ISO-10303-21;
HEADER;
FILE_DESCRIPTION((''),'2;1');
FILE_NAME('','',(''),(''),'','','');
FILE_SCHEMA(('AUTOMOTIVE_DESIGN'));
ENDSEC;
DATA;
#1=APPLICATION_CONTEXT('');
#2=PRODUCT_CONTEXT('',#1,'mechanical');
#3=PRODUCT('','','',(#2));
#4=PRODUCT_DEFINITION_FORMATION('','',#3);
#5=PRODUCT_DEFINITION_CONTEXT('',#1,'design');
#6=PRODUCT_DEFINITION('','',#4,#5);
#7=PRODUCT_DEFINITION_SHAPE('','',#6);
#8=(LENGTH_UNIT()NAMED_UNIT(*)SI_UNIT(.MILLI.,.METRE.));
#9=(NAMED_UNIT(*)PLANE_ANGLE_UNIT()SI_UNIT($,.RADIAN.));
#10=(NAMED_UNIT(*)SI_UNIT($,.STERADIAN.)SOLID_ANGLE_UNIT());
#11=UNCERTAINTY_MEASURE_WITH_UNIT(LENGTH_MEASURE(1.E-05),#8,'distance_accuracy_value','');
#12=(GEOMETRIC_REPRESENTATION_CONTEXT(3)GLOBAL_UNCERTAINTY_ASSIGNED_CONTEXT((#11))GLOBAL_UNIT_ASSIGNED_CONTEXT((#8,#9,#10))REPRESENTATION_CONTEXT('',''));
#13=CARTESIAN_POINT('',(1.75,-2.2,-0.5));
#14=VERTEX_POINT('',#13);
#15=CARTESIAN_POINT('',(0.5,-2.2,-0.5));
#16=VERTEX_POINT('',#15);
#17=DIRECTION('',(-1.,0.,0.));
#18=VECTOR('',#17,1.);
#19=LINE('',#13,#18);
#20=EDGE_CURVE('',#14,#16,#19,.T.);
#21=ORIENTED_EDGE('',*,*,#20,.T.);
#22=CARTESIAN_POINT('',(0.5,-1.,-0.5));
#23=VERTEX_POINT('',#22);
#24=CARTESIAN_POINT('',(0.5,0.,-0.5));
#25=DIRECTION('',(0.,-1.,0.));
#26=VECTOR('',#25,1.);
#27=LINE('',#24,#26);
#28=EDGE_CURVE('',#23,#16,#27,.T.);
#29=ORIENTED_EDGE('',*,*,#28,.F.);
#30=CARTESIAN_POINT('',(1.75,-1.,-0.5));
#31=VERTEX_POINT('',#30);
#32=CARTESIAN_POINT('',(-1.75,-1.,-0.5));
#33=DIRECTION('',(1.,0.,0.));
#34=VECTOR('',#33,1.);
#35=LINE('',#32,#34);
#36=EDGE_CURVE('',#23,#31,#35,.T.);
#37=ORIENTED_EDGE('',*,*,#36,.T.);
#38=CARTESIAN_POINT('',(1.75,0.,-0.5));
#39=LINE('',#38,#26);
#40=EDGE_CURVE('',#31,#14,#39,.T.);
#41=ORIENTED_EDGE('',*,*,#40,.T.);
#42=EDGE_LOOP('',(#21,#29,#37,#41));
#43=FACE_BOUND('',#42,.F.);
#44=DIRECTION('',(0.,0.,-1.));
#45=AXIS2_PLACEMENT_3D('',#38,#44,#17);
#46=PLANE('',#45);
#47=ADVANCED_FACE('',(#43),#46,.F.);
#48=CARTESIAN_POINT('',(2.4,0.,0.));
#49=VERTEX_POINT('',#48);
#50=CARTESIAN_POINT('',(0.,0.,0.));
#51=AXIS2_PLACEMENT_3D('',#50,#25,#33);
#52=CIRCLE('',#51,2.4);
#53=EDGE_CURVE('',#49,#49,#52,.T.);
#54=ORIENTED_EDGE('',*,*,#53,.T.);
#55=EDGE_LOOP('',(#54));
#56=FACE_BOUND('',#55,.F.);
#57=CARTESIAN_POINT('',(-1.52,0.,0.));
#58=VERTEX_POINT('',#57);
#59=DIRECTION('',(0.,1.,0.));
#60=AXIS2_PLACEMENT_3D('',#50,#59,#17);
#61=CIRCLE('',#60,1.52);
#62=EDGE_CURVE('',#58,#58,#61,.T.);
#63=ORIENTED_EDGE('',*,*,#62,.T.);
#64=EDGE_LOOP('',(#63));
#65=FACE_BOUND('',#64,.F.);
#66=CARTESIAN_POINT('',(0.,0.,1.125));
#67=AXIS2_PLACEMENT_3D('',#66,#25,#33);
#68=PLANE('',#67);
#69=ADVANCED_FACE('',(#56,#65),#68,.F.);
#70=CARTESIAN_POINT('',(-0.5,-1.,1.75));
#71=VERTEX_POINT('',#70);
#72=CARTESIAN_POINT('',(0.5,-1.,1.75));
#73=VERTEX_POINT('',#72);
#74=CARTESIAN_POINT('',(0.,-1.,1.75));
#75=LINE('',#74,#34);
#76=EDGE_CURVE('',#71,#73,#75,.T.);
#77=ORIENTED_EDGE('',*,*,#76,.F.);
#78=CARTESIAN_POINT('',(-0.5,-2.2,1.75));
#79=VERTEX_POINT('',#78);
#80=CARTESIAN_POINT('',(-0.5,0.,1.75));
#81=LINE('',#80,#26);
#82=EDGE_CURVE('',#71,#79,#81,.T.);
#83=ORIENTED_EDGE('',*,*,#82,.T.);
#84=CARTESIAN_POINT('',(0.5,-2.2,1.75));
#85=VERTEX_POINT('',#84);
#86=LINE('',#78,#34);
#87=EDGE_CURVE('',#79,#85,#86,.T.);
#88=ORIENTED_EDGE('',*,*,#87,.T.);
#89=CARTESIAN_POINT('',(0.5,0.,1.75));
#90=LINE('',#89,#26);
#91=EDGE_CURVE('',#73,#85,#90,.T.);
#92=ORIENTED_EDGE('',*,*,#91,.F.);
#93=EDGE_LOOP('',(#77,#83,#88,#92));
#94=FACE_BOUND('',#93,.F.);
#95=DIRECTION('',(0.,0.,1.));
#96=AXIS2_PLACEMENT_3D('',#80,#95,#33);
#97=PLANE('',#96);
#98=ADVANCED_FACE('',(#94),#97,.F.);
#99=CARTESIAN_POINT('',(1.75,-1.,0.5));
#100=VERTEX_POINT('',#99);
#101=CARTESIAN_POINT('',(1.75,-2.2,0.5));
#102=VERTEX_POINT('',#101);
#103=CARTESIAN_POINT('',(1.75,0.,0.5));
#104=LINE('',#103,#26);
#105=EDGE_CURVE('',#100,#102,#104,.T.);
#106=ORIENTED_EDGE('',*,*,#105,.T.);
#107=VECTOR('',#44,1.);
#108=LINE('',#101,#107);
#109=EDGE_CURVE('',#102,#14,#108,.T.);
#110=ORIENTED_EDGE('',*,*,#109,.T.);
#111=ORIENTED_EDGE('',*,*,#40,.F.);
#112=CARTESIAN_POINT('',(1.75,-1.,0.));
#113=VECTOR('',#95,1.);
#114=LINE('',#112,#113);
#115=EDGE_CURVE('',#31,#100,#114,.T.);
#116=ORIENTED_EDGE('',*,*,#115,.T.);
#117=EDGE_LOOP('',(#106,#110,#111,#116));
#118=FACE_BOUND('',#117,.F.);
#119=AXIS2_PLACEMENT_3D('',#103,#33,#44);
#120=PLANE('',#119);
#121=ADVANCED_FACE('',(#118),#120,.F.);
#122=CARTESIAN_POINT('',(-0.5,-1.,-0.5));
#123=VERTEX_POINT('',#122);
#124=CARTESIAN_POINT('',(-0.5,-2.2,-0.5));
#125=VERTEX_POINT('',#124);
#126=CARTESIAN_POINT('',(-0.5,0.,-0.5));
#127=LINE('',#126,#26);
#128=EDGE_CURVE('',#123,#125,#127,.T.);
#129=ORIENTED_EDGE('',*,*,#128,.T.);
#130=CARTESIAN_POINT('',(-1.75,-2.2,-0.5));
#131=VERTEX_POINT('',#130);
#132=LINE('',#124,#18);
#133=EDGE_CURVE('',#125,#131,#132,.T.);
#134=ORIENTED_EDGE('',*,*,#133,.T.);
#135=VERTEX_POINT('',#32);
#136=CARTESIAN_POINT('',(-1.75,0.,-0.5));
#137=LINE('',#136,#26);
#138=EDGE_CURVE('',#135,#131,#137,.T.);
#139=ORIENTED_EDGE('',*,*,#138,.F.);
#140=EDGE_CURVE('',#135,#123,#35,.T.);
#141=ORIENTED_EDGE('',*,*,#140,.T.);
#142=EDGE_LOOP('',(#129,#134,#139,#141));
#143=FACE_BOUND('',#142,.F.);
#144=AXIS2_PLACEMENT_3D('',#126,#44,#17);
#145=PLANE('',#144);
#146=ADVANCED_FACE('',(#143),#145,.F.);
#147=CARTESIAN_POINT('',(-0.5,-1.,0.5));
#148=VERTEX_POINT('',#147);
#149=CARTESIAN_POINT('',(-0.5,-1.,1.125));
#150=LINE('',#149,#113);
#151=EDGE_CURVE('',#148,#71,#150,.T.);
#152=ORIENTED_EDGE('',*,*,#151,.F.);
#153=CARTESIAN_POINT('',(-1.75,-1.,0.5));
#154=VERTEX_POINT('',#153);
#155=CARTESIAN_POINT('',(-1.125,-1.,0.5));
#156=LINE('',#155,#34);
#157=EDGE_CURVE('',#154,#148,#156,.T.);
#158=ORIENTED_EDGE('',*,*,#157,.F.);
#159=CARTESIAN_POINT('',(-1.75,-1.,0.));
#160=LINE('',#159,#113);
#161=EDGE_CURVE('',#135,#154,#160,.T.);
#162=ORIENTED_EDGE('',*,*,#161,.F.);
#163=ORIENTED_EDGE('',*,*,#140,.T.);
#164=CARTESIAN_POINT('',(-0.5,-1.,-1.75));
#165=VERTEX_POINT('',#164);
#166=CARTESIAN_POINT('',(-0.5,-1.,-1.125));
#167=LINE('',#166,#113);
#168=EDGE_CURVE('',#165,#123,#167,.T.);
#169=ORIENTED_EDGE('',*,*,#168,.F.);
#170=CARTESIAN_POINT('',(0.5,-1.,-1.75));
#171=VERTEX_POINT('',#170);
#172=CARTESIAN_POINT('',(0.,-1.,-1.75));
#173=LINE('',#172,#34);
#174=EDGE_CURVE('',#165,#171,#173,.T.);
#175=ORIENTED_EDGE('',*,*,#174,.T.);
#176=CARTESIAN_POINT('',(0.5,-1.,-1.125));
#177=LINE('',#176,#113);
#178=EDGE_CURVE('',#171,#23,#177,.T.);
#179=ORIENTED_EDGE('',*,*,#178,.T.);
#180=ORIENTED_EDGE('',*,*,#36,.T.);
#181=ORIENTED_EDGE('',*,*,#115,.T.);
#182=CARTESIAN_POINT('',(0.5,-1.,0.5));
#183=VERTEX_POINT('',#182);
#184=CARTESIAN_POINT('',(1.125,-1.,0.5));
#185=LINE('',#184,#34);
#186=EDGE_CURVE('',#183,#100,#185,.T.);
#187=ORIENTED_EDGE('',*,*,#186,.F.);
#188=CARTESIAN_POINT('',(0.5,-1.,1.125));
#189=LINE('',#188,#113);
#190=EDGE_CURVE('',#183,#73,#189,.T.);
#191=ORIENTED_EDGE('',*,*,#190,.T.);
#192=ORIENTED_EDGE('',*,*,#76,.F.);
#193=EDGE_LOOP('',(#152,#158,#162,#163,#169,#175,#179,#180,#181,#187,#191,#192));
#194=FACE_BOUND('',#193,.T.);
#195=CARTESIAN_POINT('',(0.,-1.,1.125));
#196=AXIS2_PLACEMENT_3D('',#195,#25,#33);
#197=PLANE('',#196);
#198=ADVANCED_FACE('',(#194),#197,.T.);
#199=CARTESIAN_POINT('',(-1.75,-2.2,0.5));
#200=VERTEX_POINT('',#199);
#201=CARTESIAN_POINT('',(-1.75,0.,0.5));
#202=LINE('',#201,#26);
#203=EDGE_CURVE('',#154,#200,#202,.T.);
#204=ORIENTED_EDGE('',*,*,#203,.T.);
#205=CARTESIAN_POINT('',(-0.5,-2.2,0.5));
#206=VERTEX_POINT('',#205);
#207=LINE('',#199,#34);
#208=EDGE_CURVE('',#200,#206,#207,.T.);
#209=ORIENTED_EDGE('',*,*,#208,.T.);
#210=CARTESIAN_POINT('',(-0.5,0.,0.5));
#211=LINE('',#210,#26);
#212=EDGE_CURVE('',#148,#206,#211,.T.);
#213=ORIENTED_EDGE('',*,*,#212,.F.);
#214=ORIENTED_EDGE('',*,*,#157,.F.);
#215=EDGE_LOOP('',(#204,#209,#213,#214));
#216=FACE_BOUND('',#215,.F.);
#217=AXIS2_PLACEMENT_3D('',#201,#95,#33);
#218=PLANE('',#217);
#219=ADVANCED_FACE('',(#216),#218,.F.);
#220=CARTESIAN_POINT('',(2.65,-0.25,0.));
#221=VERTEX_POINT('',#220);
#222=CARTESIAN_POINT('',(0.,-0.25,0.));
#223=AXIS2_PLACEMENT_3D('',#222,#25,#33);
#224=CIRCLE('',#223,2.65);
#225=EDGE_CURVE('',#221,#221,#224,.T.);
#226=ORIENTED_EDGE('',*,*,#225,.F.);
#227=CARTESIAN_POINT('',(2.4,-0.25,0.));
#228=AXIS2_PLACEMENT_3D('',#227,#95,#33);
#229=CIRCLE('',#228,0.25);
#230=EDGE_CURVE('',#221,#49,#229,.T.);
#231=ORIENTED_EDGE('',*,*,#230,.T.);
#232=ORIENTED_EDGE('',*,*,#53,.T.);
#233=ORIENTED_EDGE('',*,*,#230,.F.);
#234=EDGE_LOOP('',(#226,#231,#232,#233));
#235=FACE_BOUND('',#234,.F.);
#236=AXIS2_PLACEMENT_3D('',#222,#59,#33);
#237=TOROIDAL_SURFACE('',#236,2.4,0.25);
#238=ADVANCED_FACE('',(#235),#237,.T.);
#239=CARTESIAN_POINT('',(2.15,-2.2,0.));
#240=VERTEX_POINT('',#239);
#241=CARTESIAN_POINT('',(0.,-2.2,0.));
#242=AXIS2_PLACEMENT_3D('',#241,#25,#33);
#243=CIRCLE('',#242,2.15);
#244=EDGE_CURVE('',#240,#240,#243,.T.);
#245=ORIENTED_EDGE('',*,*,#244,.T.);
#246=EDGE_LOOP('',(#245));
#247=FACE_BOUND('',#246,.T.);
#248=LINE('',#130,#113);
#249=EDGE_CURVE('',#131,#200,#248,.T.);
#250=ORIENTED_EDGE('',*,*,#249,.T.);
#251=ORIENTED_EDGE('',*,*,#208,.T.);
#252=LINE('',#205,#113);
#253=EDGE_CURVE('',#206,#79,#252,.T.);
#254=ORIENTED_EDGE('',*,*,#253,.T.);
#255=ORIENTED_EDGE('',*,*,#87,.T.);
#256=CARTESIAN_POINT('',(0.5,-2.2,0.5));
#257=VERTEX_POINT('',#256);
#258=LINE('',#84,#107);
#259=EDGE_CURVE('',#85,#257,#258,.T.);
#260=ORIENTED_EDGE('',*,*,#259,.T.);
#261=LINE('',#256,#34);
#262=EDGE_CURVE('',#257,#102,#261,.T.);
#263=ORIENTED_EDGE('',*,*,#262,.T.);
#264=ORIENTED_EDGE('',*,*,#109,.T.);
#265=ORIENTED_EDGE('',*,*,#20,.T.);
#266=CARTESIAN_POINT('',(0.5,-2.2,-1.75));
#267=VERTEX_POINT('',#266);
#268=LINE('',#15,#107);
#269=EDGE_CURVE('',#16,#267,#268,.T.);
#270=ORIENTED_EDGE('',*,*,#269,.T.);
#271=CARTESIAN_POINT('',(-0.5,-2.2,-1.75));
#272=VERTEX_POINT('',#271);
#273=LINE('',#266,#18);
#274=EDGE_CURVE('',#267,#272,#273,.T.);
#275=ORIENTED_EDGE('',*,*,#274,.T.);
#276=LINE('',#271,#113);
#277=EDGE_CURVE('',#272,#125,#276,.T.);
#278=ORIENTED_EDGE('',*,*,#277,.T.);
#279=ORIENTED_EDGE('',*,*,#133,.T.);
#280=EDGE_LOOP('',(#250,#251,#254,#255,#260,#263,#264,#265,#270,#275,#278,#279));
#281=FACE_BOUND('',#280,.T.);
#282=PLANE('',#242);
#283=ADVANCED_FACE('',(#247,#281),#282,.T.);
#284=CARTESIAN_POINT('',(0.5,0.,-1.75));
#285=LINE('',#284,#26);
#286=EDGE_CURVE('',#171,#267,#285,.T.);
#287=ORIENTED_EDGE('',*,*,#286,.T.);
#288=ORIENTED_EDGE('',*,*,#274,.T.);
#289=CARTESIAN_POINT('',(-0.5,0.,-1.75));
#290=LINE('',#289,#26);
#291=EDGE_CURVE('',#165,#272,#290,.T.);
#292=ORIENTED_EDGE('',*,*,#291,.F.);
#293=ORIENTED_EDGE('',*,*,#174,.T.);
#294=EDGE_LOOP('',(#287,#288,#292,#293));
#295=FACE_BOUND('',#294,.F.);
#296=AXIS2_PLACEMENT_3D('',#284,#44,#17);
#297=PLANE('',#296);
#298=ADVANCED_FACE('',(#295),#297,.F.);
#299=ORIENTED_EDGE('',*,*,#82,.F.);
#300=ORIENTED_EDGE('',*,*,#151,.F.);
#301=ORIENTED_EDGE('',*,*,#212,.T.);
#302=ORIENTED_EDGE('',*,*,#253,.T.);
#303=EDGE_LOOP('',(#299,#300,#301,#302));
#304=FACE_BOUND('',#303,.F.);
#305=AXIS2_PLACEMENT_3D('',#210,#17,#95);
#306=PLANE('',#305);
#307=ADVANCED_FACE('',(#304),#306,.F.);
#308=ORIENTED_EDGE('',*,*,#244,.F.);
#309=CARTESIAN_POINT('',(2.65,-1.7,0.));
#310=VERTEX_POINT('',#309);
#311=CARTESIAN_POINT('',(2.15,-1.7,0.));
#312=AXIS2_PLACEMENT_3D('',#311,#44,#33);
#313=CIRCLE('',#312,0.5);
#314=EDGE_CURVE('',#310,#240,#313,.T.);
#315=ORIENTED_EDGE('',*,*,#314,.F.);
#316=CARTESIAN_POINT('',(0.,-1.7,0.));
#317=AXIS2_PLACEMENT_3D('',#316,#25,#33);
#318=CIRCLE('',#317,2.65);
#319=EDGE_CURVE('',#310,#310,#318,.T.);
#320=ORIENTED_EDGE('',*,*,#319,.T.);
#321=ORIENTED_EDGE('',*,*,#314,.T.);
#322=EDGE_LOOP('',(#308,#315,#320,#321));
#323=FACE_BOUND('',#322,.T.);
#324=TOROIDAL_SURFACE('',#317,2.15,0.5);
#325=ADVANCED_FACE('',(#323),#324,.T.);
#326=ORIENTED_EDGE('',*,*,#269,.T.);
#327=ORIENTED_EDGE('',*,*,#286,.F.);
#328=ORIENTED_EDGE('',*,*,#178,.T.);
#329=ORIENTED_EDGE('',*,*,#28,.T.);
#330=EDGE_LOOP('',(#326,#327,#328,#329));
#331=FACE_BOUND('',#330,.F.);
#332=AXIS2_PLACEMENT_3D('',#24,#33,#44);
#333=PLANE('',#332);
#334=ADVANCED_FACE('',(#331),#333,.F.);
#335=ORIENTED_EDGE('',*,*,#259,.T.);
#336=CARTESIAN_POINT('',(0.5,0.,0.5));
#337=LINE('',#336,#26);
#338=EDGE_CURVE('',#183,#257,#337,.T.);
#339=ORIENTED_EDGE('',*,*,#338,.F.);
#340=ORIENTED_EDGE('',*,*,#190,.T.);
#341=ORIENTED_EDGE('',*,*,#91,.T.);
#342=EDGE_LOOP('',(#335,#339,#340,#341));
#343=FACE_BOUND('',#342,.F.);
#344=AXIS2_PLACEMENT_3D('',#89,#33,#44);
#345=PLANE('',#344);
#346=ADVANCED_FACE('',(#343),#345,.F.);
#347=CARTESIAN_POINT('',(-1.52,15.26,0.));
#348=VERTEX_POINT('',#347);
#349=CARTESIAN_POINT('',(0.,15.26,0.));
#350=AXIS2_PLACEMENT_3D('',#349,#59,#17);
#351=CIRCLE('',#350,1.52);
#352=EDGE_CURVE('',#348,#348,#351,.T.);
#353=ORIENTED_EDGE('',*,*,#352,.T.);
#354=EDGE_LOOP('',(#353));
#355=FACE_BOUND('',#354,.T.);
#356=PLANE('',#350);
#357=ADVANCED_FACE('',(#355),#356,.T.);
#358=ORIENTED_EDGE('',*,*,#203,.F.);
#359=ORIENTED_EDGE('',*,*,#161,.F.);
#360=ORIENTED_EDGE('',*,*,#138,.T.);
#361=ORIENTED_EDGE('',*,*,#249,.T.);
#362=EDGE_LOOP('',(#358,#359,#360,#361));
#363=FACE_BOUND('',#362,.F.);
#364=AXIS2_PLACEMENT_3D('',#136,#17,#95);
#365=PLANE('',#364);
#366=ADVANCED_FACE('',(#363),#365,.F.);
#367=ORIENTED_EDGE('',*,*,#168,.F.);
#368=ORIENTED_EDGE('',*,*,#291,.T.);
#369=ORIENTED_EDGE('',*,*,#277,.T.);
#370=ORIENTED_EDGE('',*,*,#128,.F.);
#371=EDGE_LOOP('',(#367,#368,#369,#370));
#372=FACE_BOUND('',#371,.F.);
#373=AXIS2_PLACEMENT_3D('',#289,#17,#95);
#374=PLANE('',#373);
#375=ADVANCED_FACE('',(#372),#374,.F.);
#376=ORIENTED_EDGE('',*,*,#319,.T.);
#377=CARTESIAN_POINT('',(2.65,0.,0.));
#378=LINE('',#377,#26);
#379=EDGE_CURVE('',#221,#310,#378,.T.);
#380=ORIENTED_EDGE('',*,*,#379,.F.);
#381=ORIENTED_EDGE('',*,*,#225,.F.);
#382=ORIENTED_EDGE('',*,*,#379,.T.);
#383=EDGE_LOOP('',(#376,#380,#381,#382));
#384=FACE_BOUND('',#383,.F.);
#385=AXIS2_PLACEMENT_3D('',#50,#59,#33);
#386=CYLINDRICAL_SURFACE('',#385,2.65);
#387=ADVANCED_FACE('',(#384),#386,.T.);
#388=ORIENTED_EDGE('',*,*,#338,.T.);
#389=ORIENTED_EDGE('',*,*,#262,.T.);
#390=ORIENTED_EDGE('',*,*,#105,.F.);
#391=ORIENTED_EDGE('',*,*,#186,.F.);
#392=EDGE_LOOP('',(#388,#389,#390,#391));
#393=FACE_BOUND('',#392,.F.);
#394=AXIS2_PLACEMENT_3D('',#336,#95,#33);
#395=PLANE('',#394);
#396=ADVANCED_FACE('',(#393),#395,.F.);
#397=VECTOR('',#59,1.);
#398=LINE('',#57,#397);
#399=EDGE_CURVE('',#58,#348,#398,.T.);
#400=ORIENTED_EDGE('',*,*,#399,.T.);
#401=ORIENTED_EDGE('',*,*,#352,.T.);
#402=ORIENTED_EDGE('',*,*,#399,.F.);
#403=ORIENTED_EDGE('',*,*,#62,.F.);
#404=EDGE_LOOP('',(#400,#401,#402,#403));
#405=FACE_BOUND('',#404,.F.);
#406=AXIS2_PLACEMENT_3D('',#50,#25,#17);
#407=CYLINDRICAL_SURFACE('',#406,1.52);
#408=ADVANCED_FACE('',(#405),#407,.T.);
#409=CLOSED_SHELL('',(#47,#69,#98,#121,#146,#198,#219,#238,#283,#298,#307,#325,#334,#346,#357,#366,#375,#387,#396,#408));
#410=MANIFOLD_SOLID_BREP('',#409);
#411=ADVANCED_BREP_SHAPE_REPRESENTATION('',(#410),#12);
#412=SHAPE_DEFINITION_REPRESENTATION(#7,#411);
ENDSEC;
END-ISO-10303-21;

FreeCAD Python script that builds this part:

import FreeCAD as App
import Part
import Sketcher
Q = App.Units.Quantity


def edges_at(feature, points):
    """Names of the edges that pass closest to the given points."""
    edges = feature.Shape.Edges
    near = lambda p: min(range(len(edges)), key=lambda i: edges[i].distToShape(Part.Vertex(*p))[0])
    return sorted({f"Edge{near(p) + 1}" for p in points})

doc = App.newDocument("Part")
body = doc.addObject("PartDesign::Body", "Body")

sketch1 = doc.addObject("Sketcher::SketchObject", "Sketch")
body.addObject(sketch1)
sketch1.AttachmentSupport = (doc.XZ_Plane, [""])
sketch1.MapMode = "FlatFace"
sketch1.addGeometry([
    Part.Circle(App.Vector(0, 0, 0), App.Vector(0, 0, 1), 2.6),
    Part.LineSegment(App.Vector(1.8, -0.5, 0), App.Vector(0.5, -0.5, 0)),
    Part.LineSegment(App.Vector(0.5, -0.5, 0), App.Vector(0.5, -1.8, 0)),
    Part.LineSegment(App.Vector(0.5, -1.8, 0), App.Vector(-0.5, -1.8, 0)),
    Part.LineSegment(App.Vector(-0.5, -1.8, 0), App.Vector(-0.5, -0.5, 0)),
    Part.LineSegment(App.Vector(-0.5, -0.5, 0), App.Vector(-1.8, -0.5, 0)),
    Part.LineSegment(App.Vector(-1.8, -0.5, 0), App.Vector(-1.8, 0.5, 0)),
    Part.LineSegment(App.Vector(-1.8, 0.5, 0), App.Vector(-0.5, 0.5, 0)),
    Part.LineSegment(App.Vector(-0.5, 0.5, 0), App.Vector(-0.5, 1.8, 0)),
    Part.LineSegment(App.Vector(-0.5, 1.8, 0), App.Vector(0.5, 1.8, 0)),
    Part.LineSegment(App.Vector(0.5, 1.8, 0), App.Vector(0.5, 0.5, 0)),
    Part.LineSegment(App.Vector(0.5, 0.5, 0), App.Vector(1.8, 0.5, 0)),
    Part.LineSegment(App.Vector(1.8, 0.5, 0), App.Vector(1.8, -0.5, 0)),
], False)
sketch1.addConstraint([
    Sketcher.Constraint("Coincident", 1, 2, 2, 1),
    Sketcher.Constraint("Coincident", 2, 2, 3, 1),
    Sketcher.Constraint("Coincident", 3, 2, 4, 1),
    Sketcher.Constraint("Coincident", 4, 2, 5, 1),
    Sketcher.Constraint("Coincident", 5, 2, 6, 1),
    Sketcher.Constraint("Coincident", 6, 2, 7, 1),
    Sketcher.Constraint("Coincident", 7, 2, 8, 1),
    Sketcher.Constraint("Coincident", 8, 2, 9, 1),
    Sketcher.Constraint("Coincident", 9, 2, 10, 1),
    Sketcher.Constraint("Coincident", 10, 2, 11, 1),
    Sketcher.Constraint("Coincident", 11, 2, 12, 1),
    Sketcher.Constraint("Coincident", 12, 2, 1, 1),
    Sketcher.Constraint("Horizontal", 1),
    Sketcher.Constraint("Vertical", 2),
    Sketcher.Constraint("Horizontal", 3),
    Sketcher.Constraint("Vertical", 4),
    Sketcher.Constraint("Horizontal", 5),
    Sketcher.Constraint("Vertical", 6),
    Sketcher.Constraint("Horizontal", 7),
    Sketcher.Constraint("Vertical", 8),
    Sketcher.Constraint("Horizontal", 9),
    Sketcher.Constraint("Vertical", 10),
    Sketcher.Constraint("Horizontal", 11),
    Sketcher.Constraint("Vertical", 12),
    Sketcher.Constraint("Coincident", 0, 3, -1, 1),
    Sketcher.Constraint("Symmetric", 1, 2, 7, 2, -1, 1),
    Sketcher.Constraint("Symmetric", 3, 2, 9, 2, -1, 1),
    Sketcher.Constraint("Symmetric", 5, 2, 11, 2, -1, 1),
    Sketcher.Constraint("Symmetric", 1, 2, 4, 2, -2),
    Sketcher.Constraint("Equal", 11, 2),
    Sketcher.Constraint("Equal", 9, 6),
    Sketcher.Constraint("Diameter", 0, Q("5.3 mm")),
    Sketcher.Constraint("DistanceX", 3, 2, 3, 1, Q("1 mm")),
    Sketcher.Constraint("DistanceX", 1, 2, 1, 1, Q("1.25 mm")),
])
pad1 = doc.addObject("PartDesign::Pad", "Pad")
body.addObject(pad1)
pad1.Profile = sketch1
pad1.Length = 2.2

sketch2 = doc.addObject("Sketcher::SketchObject", "Sketch001")
body.addObject(sketch2)
sketch2.AttachmentSupport = (doc.XZ_Plane, [""])
sketch2.MapMode = "FlatFace"
sketch2.addGeometry([
    Part.LineSegment(App.Vector(-0.5, 1.8, 0), App.Vector(-0.5, 0.5, 0)),
    Part.LineSegment(App.Vector(-0.5, 0.5, 0), App.Vector(-1.8, 0.5, 0)),
    Part.LineSegment(App.Vector(-1.8, 0.5, 0), App.Vector(-1.8, -0.5, 0)),
    Part.LineSegment(App.Vector(-1.8, -0.5, 0), App.Vector(-0.5, -0.5, 0)),
    Part.LineSegment(App.Vector(-0.5, -0.5, 0), App.Vector(-0.5, -1.8, 0)),
    Part.LineSegment(App.Vector(-0.5, -1.8, 0), App.Vector(0.5, -1.8, 0)),
    Part.LineSegment(App.Vector(0.5, -1.8, 0), App.Vector(0.5, -0.5, 0)),
    Part.LineSegment(App.Vector(0.5, -0.5, 0), App.Vector(1.8, -0.5, 0)),
    Part.LineSegment(App.Vector(1.8, -0.5, 0), App.Vector(1.8, 0.5, 0)),
    Part.LineSegment(App.Vector(1.8, 0.5, 0), App.Vector(0.5, 0.5, 0)),
    Part.LineSegment(App.Vector(0.5, 0.5, 0), App.Vector(0.5, 1.8, 0)),
    Part.LineSegment(App.Vector(0.5, 1.8, 0), App.Vector(-0.5, 1.8, 0)),
], False)
sketch2.addConstraint([
    Sketcher.Constraint("Coincident", 0, 2, 1, 1),
    Sketcher.Constraint("Coincident", 1, 2, 2, 1),
    Sketcher.Constraint("Coincident", 2, 2, 3, 1),
    Sketcher.Constraint("Coincident", 3, 2, 4, 1),
    Sketcher.Constraint("Coincident", 4, 2, 5, 1),
    Sketcher.Constraint("Coincident", 5, 2, 6, 1),
    Sketcher.Constraint("Coincident", 6, 2, 7, 1),
    Sketcher.Constraint("Coincident", 7, 2, 8, 1),
    Sketcher.Constraint("Coincident", 8, 2, 9, 1),
    Sketcher.Constraint("Coincident", 9, 2, 10, 1),
    Sketcher.Constraint("Coincident", 10, 2, 11, 1),
    Sketcher.Constraint("Coincident", 11, 2, 0, 1),
    Sketcher.Constraint("Vertical", 0),
    Sketcher.Constraint("Horizontal", 1),
    Sketcher.Constraint("Vertical", 2),
    Sketcher.Constraint("Horizontal", 3),
    Sketcher.Constraint("Vertical", 4),
    Sketcher.Constraint("Horizontal", 5),
    Sketcher.Constraint("Vertical", 6),
    Sketcher.Constraint("Horizontal", 7),
    Sketcher.Constraint("Vertical", 8),
    Sketcher.Constraint("Horizontal", 9),
    Sketcher.Constraint("Vertical", 10),
    Sketcher.Constraint("Horizontal", 11),
    Sketcher.Constraint("Symmetric", 0, 2, 6, 2, -1, 1),
    Sketcher.Constraint("Symmetric", 2, 2, 8, 2, -1, 1),
    Sketcher.Constraint("Symmetric", 4, 2, 10, 2, -1, 1),
    Sketcher.Constraint("Symmetric", 3, 2, 6, 2, -2),
    Sketcher.Constraint("Equal", 9, 0),
    Sketcher.Constraint("Equal", 11, 2),
    Sketcher.Constraint("DistanceX", 5, 1, 5, 2, Q("1 mm")),
    Sketcher.Constraint("DistanceX", 1, 2, 1, 1, Q("1.25 mm")),
])
pad2 = doc.addObject("PartDesign::Pad", "Pad001")
body.addObject(pad2)
pad2.Profile = sketch2
pad2.Length = 1
doc.recompute()

fillet = doc.addObject("PartDesign::Fillet", "Fillet")
body.addObject(fillet)
fillet.Base = (pad2, edges_at(pad2, [(-2.65, -2.2, 0)]))
fillet.Radius = 0.5
doc.recompute()

fillet2 = doc.addObject("PartDesign::Fillet", "Fillet001")
body.addObject(fillet2)
fillet2.Base = (fillet, edges_at(fillet, [(-2.65, 0, 0)]))
fillet2.Radius = 0.25

sketch3 = doc.addObject("Sketcher::SketchObject", "Sketch002")
body.addObject(sketch3)
sketch3.AttachmentSupport = (doc.XZ_Plane, [""])
sketch3.MapMode = "FlatFace"
sketch3.addGeometry(Part.Circle(App.Vector(0, 0, 0), App.Vector(0, 0, 1), 1.5), False)
sketch3.addConstraint([
    Sketcher.Constraint("Coincident", 0, 3, -1, 1),
    Sketcher.Constraint("Diameter", 0, Q("3.04 mm")),
])
pad3 = doc.addObject("PartDesign::Pad", "Pad002")
body.addObject(pad3)
pad3.Profile = sketch3
pad3.Length = 15.26
pad3.Reversed = True

doc.recompute()
